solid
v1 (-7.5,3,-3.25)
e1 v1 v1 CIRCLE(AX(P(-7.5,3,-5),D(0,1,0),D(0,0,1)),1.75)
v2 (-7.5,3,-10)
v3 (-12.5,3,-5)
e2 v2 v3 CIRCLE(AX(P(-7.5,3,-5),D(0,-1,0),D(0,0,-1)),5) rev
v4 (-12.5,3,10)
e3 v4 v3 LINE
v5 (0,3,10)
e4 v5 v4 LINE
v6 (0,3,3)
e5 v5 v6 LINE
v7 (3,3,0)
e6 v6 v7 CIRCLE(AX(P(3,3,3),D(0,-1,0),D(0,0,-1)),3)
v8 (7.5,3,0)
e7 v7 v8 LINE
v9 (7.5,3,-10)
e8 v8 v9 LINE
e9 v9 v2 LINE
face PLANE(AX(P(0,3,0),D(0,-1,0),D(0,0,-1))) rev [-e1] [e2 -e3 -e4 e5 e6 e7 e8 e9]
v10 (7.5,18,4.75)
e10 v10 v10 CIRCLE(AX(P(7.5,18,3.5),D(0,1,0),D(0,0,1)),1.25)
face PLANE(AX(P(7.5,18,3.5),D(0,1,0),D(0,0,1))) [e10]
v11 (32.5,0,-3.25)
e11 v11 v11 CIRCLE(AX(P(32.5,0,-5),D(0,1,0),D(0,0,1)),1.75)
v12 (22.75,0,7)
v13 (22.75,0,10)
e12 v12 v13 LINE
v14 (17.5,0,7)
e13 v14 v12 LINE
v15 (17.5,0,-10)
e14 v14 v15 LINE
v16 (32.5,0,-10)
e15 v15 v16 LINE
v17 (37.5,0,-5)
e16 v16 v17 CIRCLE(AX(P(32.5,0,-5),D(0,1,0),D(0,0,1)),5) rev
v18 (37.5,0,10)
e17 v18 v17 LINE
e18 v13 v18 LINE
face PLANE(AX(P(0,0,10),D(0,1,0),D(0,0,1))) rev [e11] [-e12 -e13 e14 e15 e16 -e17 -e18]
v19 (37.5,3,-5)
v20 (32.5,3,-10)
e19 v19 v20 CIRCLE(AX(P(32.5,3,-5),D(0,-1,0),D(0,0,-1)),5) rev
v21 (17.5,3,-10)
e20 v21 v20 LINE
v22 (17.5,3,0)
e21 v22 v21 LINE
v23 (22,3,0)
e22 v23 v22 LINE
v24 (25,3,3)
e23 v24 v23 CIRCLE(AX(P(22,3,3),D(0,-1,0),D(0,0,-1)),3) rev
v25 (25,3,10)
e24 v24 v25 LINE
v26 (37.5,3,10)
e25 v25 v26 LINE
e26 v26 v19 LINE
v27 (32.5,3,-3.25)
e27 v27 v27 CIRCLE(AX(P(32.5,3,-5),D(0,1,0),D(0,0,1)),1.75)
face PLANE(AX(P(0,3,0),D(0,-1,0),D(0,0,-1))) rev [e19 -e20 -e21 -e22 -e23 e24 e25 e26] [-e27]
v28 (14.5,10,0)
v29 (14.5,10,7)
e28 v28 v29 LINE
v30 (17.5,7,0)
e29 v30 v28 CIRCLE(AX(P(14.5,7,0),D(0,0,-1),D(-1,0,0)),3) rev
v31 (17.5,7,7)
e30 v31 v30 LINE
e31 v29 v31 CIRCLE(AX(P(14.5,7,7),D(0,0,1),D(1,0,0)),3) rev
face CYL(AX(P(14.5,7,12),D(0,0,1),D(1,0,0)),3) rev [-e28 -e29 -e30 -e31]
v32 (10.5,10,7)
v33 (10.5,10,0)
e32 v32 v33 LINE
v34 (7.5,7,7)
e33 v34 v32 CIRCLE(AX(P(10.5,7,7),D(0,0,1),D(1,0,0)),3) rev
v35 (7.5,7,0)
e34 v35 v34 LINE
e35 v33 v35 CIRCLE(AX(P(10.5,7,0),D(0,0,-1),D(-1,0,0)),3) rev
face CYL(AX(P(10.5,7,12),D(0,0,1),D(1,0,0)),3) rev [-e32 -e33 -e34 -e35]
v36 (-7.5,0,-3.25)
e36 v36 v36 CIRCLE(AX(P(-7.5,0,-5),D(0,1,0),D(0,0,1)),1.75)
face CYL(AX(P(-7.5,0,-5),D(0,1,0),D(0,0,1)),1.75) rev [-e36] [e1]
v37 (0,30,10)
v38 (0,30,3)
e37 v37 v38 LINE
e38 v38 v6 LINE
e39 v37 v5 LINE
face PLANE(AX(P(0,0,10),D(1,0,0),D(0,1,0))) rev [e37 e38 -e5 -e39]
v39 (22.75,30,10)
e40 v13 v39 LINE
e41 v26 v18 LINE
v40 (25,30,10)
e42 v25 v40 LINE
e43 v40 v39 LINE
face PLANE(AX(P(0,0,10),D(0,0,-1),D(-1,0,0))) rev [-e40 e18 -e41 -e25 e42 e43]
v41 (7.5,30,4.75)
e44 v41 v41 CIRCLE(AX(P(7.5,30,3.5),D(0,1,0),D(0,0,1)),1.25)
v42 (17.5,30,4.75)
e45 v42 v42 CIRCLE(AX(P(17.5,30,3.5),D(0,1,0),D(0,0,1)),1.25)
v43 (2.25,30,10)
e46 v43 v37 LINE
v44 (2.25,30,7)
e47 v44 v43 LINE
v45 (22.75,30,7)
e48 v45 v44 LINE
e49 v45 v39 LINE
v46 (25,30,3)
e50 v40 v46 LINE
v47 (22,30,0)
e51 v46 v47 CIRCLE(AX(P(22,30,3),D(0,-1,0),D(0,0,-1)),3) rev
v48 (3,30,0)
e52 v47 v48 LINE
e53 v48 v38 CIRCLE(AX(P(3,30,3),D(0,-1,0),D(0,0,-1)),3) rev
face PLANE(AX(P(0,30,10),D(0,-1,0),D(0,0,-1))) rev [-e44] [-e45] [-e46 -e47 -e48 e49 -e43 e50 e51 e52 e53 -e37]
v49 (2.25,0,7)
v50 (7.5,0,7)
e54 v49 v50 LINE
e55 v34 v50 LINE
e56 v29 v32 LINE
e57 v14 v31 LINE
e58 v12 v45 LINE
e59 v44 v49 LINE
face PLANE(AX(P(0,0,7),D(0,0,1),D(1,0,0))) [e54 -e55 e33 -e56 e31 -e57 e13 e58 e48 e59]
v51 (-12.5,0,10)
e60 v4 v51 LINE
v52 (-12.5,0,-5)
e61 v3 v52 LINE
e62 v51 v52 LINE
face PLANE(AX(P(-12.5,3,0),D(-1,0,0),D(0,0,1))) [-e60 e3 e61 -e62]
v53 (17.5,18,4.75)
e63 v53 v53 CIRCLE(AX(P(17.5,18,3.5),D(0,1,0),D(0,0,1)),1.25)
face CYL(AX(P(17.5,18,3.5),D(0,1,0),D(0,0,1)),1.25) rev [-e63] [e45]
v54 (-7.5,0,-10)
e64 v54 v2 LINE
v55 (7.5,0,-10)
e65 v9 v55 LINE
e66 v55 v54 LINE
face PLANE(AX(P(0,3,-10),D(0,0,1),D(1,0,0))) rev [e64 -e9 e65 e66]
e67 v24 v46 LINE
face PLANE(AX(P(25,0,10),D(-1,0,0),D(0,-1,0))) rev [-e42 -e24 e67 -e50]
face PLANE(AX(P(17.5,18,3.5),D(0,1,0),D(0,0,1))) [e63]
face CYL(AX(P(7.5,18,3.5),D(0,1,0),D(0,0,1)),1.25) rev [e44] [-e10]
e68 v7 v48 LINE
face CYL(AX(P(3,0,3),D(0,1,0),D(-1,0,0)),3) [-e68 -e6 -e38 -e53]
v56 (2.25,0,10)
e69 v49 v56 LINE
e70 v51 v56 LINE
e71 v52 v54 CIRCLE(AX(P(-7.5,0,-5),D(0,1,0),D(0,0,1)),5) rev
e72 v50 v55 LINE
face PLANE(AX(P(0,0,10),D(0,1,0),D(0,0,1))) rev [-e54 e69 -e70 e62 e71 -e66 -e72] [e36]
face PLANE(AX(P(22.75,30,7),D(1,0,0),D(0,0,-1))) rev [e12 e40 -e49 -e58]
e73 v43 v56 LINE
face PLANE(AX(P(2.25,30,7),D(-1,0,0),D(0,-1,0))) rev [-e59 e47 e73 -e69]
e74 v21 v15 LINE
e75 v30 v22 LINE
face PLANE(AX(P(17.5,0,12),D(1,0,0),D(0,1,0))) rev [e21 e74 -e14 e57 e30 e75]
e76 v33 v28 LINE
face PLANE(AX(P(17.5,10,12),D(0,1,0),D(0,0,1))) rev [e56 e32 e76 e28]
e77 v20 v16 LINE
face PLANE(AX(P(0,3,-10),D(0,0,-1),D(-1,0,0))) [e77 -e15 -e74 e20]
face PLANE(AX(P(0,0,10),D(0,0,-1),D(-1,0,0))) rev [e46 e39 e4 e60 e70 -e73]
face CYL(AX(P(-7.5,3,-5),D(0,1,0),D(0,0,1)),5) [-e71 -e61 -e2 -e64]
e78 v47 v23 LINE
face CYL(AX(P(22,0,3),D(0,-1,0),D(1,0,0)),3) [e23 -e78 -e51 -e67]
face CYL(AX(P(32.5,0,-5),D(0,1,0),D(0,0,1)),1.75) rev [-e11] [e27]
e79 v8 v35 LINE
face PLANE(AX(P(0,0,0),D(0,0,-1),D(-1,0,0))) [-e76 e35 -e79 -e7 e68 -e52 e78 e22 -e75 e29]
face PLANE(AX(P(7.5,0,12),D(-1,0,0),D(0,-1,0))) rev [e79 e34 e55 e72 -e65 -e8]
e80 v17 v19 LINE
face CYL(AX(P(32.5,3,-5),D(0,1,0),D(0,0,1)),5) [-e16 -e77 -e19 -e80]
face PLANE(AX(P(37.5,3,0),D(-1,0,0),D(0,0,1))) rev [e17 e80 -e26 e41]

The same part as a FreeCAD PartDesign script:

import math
import FreeCAD as App
import Part
import Sketcher
Q = App.Units.Quantity


def edges_at(feature, points):
    """Names of the edges that pass closest to the given points."""
    edges = feature.Shape.Edges
    near = lambda p: min(range(len(edges)), key=lambda i: edges[i].distToShape(Part.Vertex(*p))[0])
    return sorted({f"Edge{near(p) + 1}" for p in points})


def add_polygon(sketch, points):
    """Adds a closed chain of lines whose ends are joined by coincident constraints."""
    first, n = sketch.GeometryCount, len(points)
    for a, b in zip(points, points[1:] + points[:1]):
        sketch.addGeometry(Part.LineSegment(App.Vector(*a, 0), App.Vector(*b, 0)), False)
    for i in range(n):
        sketch.addConstraint(Sketcher.Constraint("Coincident", first + i, 2, first + (i + 1) % n, 1))

doc = App.newDocument("Part")
params = doc.addObject("Spreadsheet::Sheet", "Params")
for row, (alias, value) in enumerate([
    ("sketch1_width", "25 mm"),
    ("sketch1_height", "30 mm"),
    ("pad1_length", "10 mm"),
    ("sketch2_height", "30 mm"),
    ("sketch2_width", "20.5 mm"),
    ("pocket1_length", "3 mm"),
    ("sketch3_diameter", "2.5 mm"),
    ("pocket2_length", "12 mm"),
    ("sketch4_width", "10 mm"),
    ("pocket3_length", "12 mm"),
    ("fillet_radius", "3 mm"),
    ("sketch5_radius", "3 mm"),
    ("sketch5_width", "20 mm"),
    ("sketch5_height", "3 mm"),
    ("sketch5_height2", "10 mm"),
    ("sketch5_width2", "4.5 mm"),
    ("pad2_length", "3 mm"),
    ("fillet2_radius", "5 mm"),
    ("sketch6_diameter", "3.5 mm"),
    ("pocket4_length", "3 mm"),
], start=1):
    params.set(f"A{row}", alias)
    params.set(f"B{row}", "=" + value)
    params.setAlias(f"B{row}", alias)

body = doc.addObject("PartDesign::Body", "Body")

# Sketch on XY plane
sketch1 = body.newObject("Sketcher::SketchObject", "Sketch")
sketch1.AttachmentSupport = (doc.getObject("XY_Plane"), [""])
sketch1.MapMode = "FlatFace"
add_polygon(sketch1, [(0, 30), (0, 0), (25, 0), (25, 30)])  # lines 0-3
sketch1.addConstraint([
    Sketcher.Constraint("Vertical", 0),
    Sketcher.Constraint("Horizontal", 1),
    Sketcher.Constraint("Vertical", 2),
    Sketcher.Constraint("Horizontal", 3),
    Sketcher.Constraint("Coincident", 0, 2, -1, 1),
    Sketcher.Constraint("DistanceX", 1, 1, 1, 2, Q("25 mm")),
    Sketcher.Constraint("DistanceY", 0, 2, 0, 1, Q("30 mm")),
])
sketch1.setExpression("Constraints[9]", "Params.sketch1_width")
sketch1.setExpression("Constraints[10]", "Params.sketch1_height")
pad1 = body.newObject("PartDesign::Pad", "Pad")
pad1.Profile = sketch1
pad1.setExpression("Length", "Params.pad1_length")

# Sketch on XY plane
sketch2 = body.newObject("Sketcher::SketchObject", "Sketch001")
sketch2.AttachmentSupport = (doc.getObject("XY_Plane"), [""])
sketch2.MapMode = "FlatFace"
sketch2.AttachmentOffset = App.Placement(App.Vector(0, 0, 10), App.Rotation())
add_polygon(sketch2, [(2, 30), (2, 0), (23, 0), (23, 30)])  # lines 0-3
sketch2.addConstraint([
    Sketcher.Constraint("Vertical", 0),
    Sketcher.Constraint("Horizontal", 1),
    Sketcher.Constraint("Vertical", 2),
    Sketcher.Constraint("Horizontal", 3),
    Sketcher.Constraint("PointOnObject", 0, 2, -1),
    Sketcher.Constraint("DistanceY", 0, 2, 0, 1, Q("30 mm")),
    Sketcher.Constraint("DistanceX", 1, 1, 1, 2, Q("20.5 mm")),
    Sketcher.Constraint("DistanceX", -1, 1, 0, 2, Q("2.25 mm")),
])
sketch2.setExpression("Constraints[9]", "Params.sketch2_height")
sketch2.setExpression("Constraints[10]", "Params.sketch2_width")
pocket1 = body.newObject("PartDesign::Pocket", "Pocket")
pocket1.Profile = sketch2
pocket1.setExpression("Length", "Params.pocket1_length")

# Sketch on XZ plane
sketch3 = body.newObject("Sketcher::SketchObject", "Sketch002")
sketch3.AttachmentSupport = (doc.getObject("XZ_Plane"), [""])
sketch3.MapMode = "FlatFace"
sketch3.AttachmentOffset = App.Placement(App.Vector(0, 0, -30), App.Rotation())
sketch3.addGeometry([
    Part.Circle(App.Vector(7.5, 3.5, 0), App.Vector(0, 0, 1), 1.2),
    Part.Circle(App.Vector(17.5, 3.5, 0), App.Vector(0, 0, 1), 1.2),
], False)
sketch3.addConstraint([
    Sketcher.Constraint("Equal", 0, 1),
    Sketcher.Constraint("Horizontal", 0, 3, 1, 3),
    Sketcher.Constraint("Diameter", 0, Q("2.5 mm")),
    Sketcher.Constraint("DistanceX", 0, 3, 1, 3, Q("10 mm")),
    Sketcher.Constraint("DistanceX", -1, 1, 0, 3, Q("7.5 mm")),
    Sketcher.Constraint("DistanceY", -1, 1, 0, 3, Q("3.5 mm")),
])
sketch3.setExpression("Constraints[2]", "Params.sketch3_diameter")
pocket2 = body.newObject("PartDesign::Pocket", "Pocket001")
pocket2.Profile = sketch3
pocket2.setExpression("Length", "Params.pocket2_length")
pocket2.Reversed = True

# Sketch on XY plane
sketch4 = body.newObject("Sketcher::SketchObject", "Sketch003")
sketch4.AttachmentSupport = (doc.getObject("XY_Plane"), [""])
sketch4.MapMode = "FlatFace"
add_polygon(sketch4, [(18, 10), (18, 0), (8, 0), (8, 10)])  # lines 0-3
sketch4.addConstraint([
    Sketcher.Constraint("Vertical", 0),
    Sketcher.Constraint("Horizontal", 1),
    Sketcher.Constraint("Vertical", 2),
    Sketcher.Constraint("Horizontal", 3),
    Sketcher.Constraint("PointOnObject", 0, 2, -1),
    Sketcher.Constraint("Equal", 3, 0),
    Sketcher.Constraint("DistanceX", 1, 2, 1, 1, Q("10 mm")),
    Sketcher.Constraint("DistanceX", -1, 1, 0, 2, Q("17.5 mm")),
])
sketch4.setExpression("Constraints[10]", "Params.sketch4_width")
pocket3 = body.newObject("PartDesign::Pocket", "Pocket002")
pocket3.Profile = sketch4
pocket3.setExpression("Length", "Params.pocket3_length")
pocket3.Reversed = True
doc.recompute()

fillet = body.newObject("PartDesign::Fillet", "Fillet")
fillet.Base = (pocket3, edges_at(pocket3, [
    (17.5, 10, 3.5),
    (7.5, 10, 3.5),
    (25, 15, 0),
    (0, 15, 0),
]))
fillet.setExpression("Radius", "Params.fillet_radius")

# Sketch on XZ plane
sketch5 = body.newObject("Sketcher::SketchObject", "Sketch004")
sketch5.AttachmentSupport = (doc.getObject("XZ_Plane"), [""])
sketch5.MapMode = "FlatFace"
add_polygon(sketch5, [(37.5, 10), (22.8, 10), (22.8, 7), (17.5, 7), (17.5, -10), (37.5, -10)])  # lines 0-5
sketch5.addGeometry(Part.LineSegment(App.Vector(7.5, -10, 0), App.Vector(7.5, 0, 0)), False)  # 6
sketch5.addGeometry(Part.LineSegment(App.Vector(7.5, 0, 0), App.Vector(3, 0, 0)), False)  # 7
sketch5.addGeometry(Part.ArcOfCircle(Part.Circle(App.Vector(3, 3, 0), App.Vector(0, 0, 1), 3), math.radians(180), math.radians(270)), False)  # 8
sketch5.addGeometry(Part.LineSegment(App.Vector(0, 3, 0), App.Vector(0, 10, 0)), False)  # 9
sketch5.addGeometry(Part.LineSegment(App.Vector(0, 10, 0), App.Vector(-12.5, 10, 0)), False)  # 10
sketch5.addGeometry(Part.LineSegment(App.Vector(-12.5, 10, 0), App.Vector(-12.5, -10, 0)), False)  # 11
sketch5.addGeometry(Part.LineSegment(App.Vector(-12.5, -10, 0), App.Vector(7.5, -10, 0)), False)  # 12
sketch5.addConstraint([
    Sketcher.Constraint("Coincident", 6, 2, 7, 1),
    Sketcher.Constraint("Tangent", 7, 2, 8, 2),
    Sketcher.Constraint("Tangent", 8, 1, 9, 1),
    Sketcher.Constraint("Coincident", 9, 2, 10, 1),
    Sketcher.Constraint("Coincident", 10, 2, 11, 1),
    Sketcher.Constraint("Coincident", 11, 2, 12, 1),
    Sketcher.Constraint("Coincident", 12, 2, 6, 1),
    Sketcher.Constraint("Horizontal", 0),
    Sketcher.Constraint("Vertical", 1),
    Sketcher.Constraint("Horizontal", 2),
    Sketcher.Constraint("Vertical", 3),
    Sketcher.Constraint("Horizontal", 4),
    Sketcher.Constraint("Vertical", 5),
    Sketcher.Constraint("Vertical", 6),
    Sketcher.Constraint("Horizontal", 7),
    Sketcher.Constraint("Vertical", 9),
    Sketcher.Constraint("Horizontal", 10),
    Sketcher.Constraint("Vertical", 11),
    Sketcher.Constraint("Horizontal", 12),
    Sketcher.Constraint("PointOnObject", 6, 2, -1),
    Sketcher.Constraint("PointOnObject", 8, 1, -2),
    Sketcher.Constraint("Horizontal", 5, 2, 9, 2),
    Sketcher.Constraint("Horizontal", 4, 2, 11, 2),
    Sketcher.Constraint("Equal", 4, 12),
    Sketcher.Constraint("Equal", 12, 5),
    Sketcher.Constraint("Radius", 8, Q("3 mm")),
    Sketcher.Constraint("DistanceX", 4, 1, 4, 2, Q("20 mm")),
    Sketcher.Constraint("DistanceY", 1, 2, 1, 1, Q("3 mm")),
    Sketcher.Constraint("DistanceY", 6, 1, 6, 2, Q("10 mm")),
    Sketcher.Constraint("DistanceX", 7, 2, 7, 1, Q("4.5 mm")),
    Sketcher.Constraint("DistanceX", 6, 2, 2, 2, Q("10 mm")),
    Sketcher.Constraint("DistanceX", 0, 2, 0, 1, Q("14.75 mm")),
])
sketch5.setExpression("Constraints[31]", "Params.sketch5_radius")
sketch5.setExpression("Constraints[32]", "Params.sketch5_width")
sketch5.setExpression("Constraints[33]", "Params.sketch5_height")
sketch5.setExpression("Constraints[34]", "Params.sketch5_height2")
sketch5.setExpression("Constraints[35]", "Params.sketch5_width2")
pad2 = body.newObject("PartDesign::Pad", "Pad001")
pad2.Profile = sketch5
pad2.setExpression("Length", "Params.pad2_length")
pad2.Reversed = True
doc.recompute()

fillet2 = body.newObject("PartDesign::Fillet", "Fillet001")
fillet2.Base = (pad2, edges_at(pad2, [(-12.5, 1.5, -10), (37.5, 1.5, -10)]))
fillet2.setExpression("Radius", "Params.fillet2_radius")

# Sketch on XZ plane
sketch6 = body.newObject("Sketcher::SketchObject", "Sketch005")
sketch6.AttachmentSupport = (doc.getObject("XZ_Plane"), [""])
sketch6.MapMode = "FlatFace"
sketch6.AttachmentOffset = App.Placement(App.Vector(0, 0, -3), App.Rotation())
sketch6.addGeometry([
    Part.Circle(App.Vector(32.5, -5, 0), App.Vector(0, 0, 1), 1.8),
    Part.Circle(App.Vector(-7.5, -5, 0), App.Vector(0, 0, 1), 1.8),
], False)
sketch6.addConstraint([
    Sketcher.Constraint("Equal", 0, 1),
    Sketcher.Constraint("Horizontal", 0, 3, 1, 3),
    Sketcher.Constraint("Diameter", 0, Q("3.5 mm")),
    Sketcher.Constraint("DistanceY", 0, 3, -1, 1, Q("5 mm")),
    Sketcher.Constraint("DistanceX", 1, 3, 0, 3, Q("40 mm")),
    Sketcher.Constraint("DistanceX", -1, 1, 0, 3, Q("32.5 mm")),
])
sketch6.setExpression("Constraints[2]", "Params.sketch6_diameter")
pocket4 = body.newObject("PartDesign::Pocket", "Pocket003")
pocket4.Profile = sketch6
pocket4.setExpression("Length", "Params.pocket4_length")
pocket4.Reversed = True

doc.recompute()
